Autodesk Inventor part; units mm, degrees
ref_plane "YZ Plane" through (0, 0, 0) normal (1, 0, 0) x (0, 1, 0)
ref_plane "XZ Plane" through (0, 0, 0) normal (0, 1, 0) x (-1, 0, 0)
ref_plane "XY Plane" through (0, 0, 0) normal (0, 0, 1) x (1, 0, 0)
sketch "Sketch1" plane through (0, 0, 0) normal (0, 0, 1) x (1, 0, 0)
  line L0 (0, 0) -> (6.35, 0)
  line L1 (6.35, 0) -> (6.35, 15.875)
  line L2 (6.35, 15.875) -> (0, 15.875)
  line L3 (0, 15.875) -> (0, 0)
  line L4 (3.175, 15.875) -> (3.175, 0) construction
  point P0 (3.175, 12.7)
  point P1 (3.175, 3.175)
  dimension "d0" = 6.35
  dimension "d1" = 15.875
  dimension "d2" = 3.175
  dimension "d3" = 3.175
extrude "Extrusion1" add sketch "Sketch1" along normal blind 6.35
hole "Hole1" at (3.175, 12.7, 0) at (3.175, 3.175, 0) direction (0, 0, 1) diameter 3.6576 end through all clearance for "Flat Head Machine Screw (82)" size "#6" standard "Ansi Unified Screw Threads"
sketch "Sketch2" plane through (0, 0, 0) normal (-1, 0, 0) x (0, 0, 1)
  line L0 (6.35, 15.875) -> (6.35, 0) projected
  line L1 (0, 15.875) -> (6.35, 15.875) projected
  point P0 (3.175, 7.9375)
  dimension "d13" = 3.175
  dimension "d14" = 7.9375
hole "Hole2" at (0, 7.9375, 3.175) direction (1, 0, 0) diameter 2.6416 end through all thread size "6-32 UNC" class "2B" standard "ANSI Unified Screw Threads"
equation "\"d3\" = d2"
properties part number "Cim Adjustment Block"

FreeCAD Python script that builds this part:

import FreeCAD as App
import Part
import Sketcher

V = App.Vector
Q = App.Units.Quantity

doc = App.newDocument("Part")
body = doc.addObject("PartDesign::Body", "Body")

sketch1 = doc.addObject("Sketcher::SketchObject", "Sketch")
body.addObject(sketch1)
sketch1.AttachmentSupport = (doc.XY_Plane, [""])
sketch1.MapMode = "FlatFace"
sketch1.addGeometry([
    Part.LineSegment(V(0, 16, 0), V(0, 0, 0)),
    Part.LineSegment(V(0, 0, 0), V(6, 0, 0)),
    Part.LineSegment(V(6, 0, 0), V(6, 16, 0)),
    Part.LineSegment(V(6, 16, 0), V(0, 16, 0)),
], False)
sketch1.addConstraint([
    Sketcher.Constraint("Coincident", 0, 2, 1, 1),
    Sketcher.Constraint("Coincident", 1, 2, 2, 1),
    Sketcher.Constraint("Coincident", 2, 2, 3, 1),
    Sketcher.Constraint("Coincident", 3, 2, 0, 1),
    Sketcher.Constraint("Vertical", 0),
    Sketcher.Constraint("Horizontal", 1),
    Sketcher.Constraint("Vertical", 2),
    Sketcher.Constraint("Horizontal", 3),
    Sketcher.Constraint("Coincident", 0, 2, -1, 1),
    Sketcher.Constraint("DistanceX", 1, 1, 1, 2, Q("0.25 in")),
    Sketcher.Constraint("DistanceY", 0, 2, 0, 1, Q("0.625 in")),
])
pad1 = doc.addObject("PartDesign::Pad", "Pad")
body.addObject(pad1)
pad1.Profile = sketch1
pad1.Length = Q("0.25 in")

sketch2 = doc.addObject("Sketcher::SketchObject", "Sketch001")
body.addObject(sketch2)
sketch2.AttachmentSupport = (doc.XY_Plane, [""])
sketch2.MapMode = "FlatFace"
sketch2.addGeometry([
    Part.Circle(V(3.2, 12.7, 0), V(0, 0, 1), 1.8),
    Part.Circle(V(3.2, 3.2, 0), V(0, 0, 1), 1.8),
], False)
sketch2.addConstraint([
    Sketcher.Constraint("Equal", 0, 1),
    Sketcher.Constraint("Vertical", 0, 3, 1, 3),
    Sketcher.Constraint("Diameter", 0, Q("0.144 in")),
    Sketcher.Constraint("DistanceY", -1, 1, 0, 3, Q("0.5 in")),
    Sketcher.Constraint("DistanceX", -1, 1, 0, 3, Q("0.125 in")),
    Sketcher.Constraint("DistanceY", -1, 1, 1, 3, Q("0.125 in")),
])
doc.recompute()
hole = doc.addObject("PartDesign::Hole", "Hole")
body.addObject(hole)
hole.Profile = sketch2
hole.ThreadType = "None"
hole.Diameter = Q("0.144 in")
hole.DepthType = "ThroughAll"
hole.Reversed = True

sketch3 = doc.addObject("Sketcher::SketchObject", "Sketch002")
body.addObject(sketch3)
sketch3.AttachmentSupport = (doc.YZ_Plane, [""])
sketch3.MapMode = "FlatFace"
sketch3.addGeometry(Part.Circle(V(7.9, 3.2, 0), V(0, 0, 1), 1.3), False)
sketch3.addConstraint([
    Sketcher.Constraint("Diameter", 0, Q("0.104 in")),
    Sketcher.Constraint("DistanceX", -1, 1, 0, 3, Q("0.3125 in")),
    Sketcher.Constraint("DistanceY", -1, 1, 0, 3, Q("0.125 in")),
])
doc.recompute()
hole2 = doc.addObject("PartDesign::Hole", "Hole001")
body.addObject(hole2)
hole2.Profile = sketch3
hole2.ThreadType = "None"
hole2.Diameter = Q("0.104 in")
hole2.DepthType = "ThroughAll"
hole2.Reversed = True

doc.recompute()
